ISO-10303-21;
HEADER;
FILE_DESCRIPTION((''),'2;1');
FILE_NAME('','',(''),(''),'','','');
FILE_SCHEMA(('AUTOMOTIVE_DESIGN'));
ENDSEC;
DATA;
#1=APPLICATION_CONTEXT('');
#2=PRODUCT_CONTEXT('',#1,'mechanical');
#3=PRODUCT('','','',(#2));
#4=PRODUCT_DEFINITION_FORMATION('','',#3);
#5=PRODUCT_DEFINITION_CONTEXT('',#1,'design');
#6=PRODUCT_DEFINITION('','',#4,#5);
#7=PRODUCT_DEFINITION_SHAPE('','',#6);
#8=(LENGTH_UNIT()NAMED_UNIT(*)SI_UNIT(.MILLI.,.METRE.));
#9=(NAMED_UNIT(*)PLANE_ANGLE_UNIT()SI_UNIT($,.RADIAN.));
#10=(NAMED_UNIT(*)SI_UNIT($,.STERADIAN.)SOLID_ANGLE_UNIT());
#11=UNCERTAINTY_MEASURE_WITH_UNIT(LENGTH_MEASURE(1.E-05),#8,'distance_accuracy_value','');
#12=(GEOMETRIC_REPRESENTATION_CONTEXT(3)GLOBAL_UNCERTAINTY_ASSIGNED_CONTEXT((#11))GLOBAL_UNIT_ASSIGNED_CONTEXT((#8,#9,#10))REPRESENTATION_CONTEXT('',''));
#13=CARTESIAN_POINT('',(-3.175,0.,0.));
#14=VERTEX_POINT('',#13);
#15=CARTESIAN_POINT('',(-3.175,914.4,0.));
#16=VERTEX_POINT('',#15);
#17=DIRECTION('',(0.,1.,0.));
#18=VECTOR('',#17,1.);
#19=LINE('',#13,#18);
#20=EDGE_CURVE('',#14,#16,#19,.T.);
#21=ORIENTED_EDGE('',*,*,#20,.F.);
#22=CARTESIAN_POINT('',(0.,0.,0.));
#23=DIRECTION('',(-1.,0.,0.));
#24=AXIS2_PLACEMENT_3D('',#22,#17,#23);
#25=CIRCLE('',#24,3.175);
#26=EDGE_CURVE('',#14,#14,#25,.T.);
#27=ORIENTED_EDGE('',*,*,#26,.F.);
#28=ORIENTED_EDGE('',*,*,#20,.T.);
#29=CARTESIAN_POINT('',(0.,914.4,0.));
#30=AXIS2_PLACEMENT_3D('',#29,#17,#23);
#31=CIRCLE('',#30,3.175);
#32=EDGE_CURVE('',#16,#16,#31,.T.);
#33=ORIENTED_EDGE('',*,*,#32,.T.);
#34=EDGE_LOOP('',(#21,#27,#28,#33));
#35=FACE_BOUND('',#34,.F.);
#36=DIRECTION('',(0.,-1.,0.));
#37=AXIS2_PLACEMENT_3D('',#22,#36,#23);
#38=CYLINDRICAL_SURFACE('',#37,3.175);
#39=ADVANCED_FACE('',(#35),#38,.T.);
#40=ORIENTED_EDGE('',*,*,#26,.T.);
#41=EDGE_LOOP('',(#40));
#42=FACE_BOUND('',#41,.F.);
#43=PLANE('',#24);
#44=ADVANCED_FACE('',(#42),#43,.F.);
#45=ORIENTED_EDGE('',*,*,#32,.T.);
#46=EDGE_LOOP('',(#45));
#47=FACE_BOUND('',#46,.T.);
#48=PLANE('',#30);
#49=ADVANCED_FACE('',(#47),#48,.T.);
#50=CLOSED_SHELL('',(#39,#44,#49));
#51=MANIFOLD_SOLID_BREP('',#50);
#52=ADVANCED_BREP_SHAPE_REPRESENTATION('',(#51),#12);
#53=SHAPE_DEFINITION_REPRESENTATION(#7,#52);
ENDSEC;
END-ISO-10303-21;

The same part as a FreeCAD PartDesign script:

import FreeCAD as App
import Part
import Sketcher
from FreeCAD import Vector
Q = App.Units.Quantity

doc = App.newDocument("Part")
params = doc.addObject("Spreadsheet::Sheet", "Params")
for row, (alias, value) in enumerate([
    ("sketch1_diameter", "0.25 in"),
    ("pad1_length", "36 in"),
], start=1):
    params.set(f"A{row}", alias)
    params.set(f"B{row}", "=" + value)
    params.setAlias(f"B{row}", alias)

body = doc.addObject("PartDesign::Body", "Body")

# Sketch on XZ plane
sketch1 = doc.addObject("Sketcher::SketchObject", "Sketch")
body.addObject(sketch1)
sketch1.AttachmentSupport = (doc.XZ_Plane, [""])
sketch1.MapMode = "FlatFace"
sketch1.addGeometry(Part.Circle(Vector(0, 0, 0), Vector(0, 0, 1), 3.2), False)
sketch1.addConstraint([
    Sketcher.Constraint("Coincident", 0, 3, -1, 1),
    Sketcher.Constraint("Diameter", 0, Q("0.25 in")),
])
sketch1.setExpression("Constraints[1]", "Params.sketch1_diameter")
pad1 = doc.addObject("PartDesign::Pad", "Pad")
body.addObject(pad1)
pad1.Profile = sketch1
pad1.setExpression("Length", "Params.pad1_length")
pad1.Reversed = True

doc.recompute()
